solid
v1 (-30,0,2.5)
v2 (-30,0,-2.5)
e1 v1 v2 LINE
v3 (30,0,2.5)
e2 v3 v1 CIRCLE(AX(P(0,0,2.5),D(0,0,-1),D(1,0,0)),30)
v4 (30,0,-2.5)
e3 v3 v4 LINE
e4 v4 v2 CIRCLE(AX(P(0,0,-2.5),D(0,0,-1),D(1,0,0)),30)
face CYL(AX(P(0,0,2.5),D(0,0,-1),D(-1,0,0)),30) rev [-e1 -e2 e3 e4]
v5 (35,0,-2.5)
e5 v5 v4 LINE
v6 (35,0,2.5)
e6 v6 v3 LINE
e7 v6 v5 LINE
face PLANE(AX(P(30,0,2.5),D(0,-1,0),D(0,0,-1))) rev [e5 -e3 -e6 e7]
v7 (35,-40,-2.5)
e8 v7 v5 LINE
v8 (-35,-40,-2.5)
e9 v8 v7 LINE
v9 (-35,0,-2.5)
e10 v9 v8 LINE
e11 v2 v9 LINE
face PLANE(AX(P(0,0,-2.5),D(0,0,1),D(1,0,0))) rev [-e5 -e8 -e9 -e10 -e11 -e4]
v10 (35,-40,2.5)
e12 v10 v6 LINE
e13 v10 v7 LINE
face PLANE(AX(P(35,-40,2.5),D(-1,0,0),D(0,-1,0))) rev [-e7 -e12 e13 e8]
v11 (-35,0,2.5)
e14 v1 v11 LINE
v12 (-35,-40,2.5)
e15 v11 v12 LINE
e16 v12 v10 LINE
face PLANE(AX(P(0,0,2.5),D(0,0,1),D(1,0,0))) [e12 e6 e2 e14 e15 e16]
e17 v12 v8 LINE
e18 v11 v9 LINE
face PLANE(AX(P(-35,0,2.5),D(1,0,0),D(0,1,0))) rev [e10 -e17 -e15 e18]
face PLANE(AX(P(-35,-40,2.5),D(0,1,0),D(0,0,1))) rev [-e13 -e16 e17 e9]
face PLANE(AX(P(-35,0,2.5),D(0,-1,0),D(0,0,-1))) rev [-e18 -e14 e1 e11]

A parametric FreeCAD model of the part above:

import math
import FreeCAD as App
import Part
import Sketcher
Q = App.Units.Quantity

doc = App.newDocument("Part")
body = doc.addObject("PartDesign::Body", "Body")

# Sketch on XY plane
sketch1 = body.newObject("Sketcher::SketchObject", "Sketch")
sketch1.AttachmentSupport = (doc.getObject("XY_Plane"), [""])
sketch1.MapMode = "FlatFace"
sketch1.addGeometry([
    Part.LineSegment(App.Vector(-35, 0, 0), App.Vector(-35, -40, 0)),  # 0
    Part.LineSegment(App.Vector(-35, -40, 0), App.Vector(35, -40, 0)),  # 1
    Part.LineSegment(App.Vector(35, -40, 0), App.Vector(35, 0, 0)),  # 2
    Part.LineSegment(App.Vector(35, 0, 0), App.Vector(30, 0, 0)),  # 3
    Part.ArcOfCircle(Part.Circle(App.Vector(0, 0, 0), App.Vector(0, 0, 1), 30), math.radians(180), math.radians(360)),  # 4
    Part.LineSegment(App.Vector(-30, 0, 0), App.Vector(-35, 0, 0)),  # 5
], False)
sketch1.addConstraint([
    Sketcher.Constraint("Coincident", 0, 2, 1, 1),
    Sketcher.Constraint("Coincident", 1, 2, 2, 1),
    Sketcher.Constraint("Coincident", 2, 2, 3, 1),
    Sketcher.Constraint("Coincident", 3, 2, 4, 2),
    Sketcher.Constraint("Coincident", 4, 1, 5, 1),
    Sketcher.Constraint("Coincident", 5, 2, 0, 1),
    Sketcher.Constraint("Vertical", 0),
    Sketcher.Constraint("Horizontal", 1),
    Sketcher.Constraint("Vertical", 2),
    Sketcher.Constraint("Horizontal", 3),
    Sketcher.Constraint("Horizontal", 5),
    Sketcher.Constraint("Coincident", 4, 3, -1, 1),
    Sketcher.Constraint("Symmetric", 2, 2, 5, 2, -1, 1),
    Sketcher.Constraint("PointOnObject", 2, 2, -1),
    Sketcher.Constraint("Radius", 4, Q("30 mm")),
    Sketcher.Constraint("DistanceX", 1, 1, 1, 2, Q("70 mm")),
    Sketcher.Constraint("DistanceY", 0, 2, 0, 1, Q("40 mm")),
])
pad1 = body.newObject("PartDesign::Pad", "Pad")
pad1.Profile = sketch1
pad1.Length = 5
pad1.Midplane = True

doc.recompute()
